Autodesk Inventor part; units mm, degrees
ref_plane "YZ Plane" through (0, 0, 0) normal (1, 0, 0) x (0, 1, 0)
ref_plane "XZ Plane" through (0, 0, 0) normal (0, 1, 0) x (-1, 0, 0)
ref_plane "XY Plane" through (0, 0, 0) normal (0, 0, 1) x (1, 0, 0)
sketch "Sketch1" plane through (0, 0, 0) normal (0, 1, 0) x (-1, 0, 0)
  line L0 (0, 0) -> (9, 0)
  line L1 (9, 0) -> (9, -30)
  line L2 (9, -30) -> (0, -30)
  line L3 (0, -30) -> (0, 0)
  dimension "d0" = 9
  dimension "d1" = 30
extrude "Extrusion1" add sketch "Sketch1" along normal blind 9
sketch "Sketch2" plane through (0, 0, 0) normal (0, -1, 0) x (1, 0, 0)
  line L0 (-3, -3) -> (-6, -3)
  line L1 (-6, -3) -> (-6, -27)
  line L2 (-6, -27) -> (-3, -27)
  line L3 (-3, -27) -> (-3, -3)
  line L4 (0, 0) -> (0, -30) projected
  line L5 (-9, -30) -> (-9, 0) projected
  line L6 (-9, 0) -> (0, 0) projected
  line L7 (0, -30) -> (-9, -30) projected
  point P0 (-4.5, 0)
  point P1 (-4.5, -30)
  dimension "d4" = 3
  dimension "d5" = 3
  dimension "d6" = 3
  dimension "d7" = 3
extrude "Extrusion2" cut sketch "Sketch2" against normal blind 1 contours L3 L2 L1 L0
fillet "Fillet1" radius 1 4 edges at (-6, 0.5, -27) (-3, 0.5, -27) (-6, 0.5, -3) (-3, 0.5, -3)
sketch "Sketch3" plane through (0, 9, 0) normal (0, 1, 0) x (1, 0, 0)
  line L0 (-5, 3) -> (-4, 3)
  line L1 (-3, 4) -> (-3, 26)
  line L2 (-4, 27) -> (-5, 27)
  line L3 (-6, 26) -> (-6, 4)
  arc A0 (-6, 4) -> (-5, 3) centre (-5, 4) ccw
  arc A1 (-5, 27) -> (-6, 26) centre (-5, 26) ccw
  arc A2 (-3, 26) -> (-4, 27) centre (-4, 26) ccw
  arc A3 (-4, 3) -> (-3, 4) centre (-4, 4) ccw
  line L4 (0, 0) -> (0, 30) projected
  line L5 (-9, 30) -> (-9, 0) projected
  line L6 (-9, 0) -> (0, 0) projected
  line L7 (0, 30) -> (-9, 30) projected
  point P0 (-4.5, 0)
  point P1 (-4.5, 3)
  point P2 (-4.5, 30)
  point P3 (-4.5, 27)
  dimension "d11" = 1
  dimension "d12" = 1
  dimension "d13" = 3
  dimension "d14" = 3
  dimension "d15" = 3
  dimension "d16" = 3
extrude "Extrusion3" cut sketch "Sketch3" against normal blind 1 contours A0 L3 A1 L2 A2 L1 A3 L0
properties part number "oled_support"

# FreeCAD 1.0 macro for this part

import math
import FreeCAD as App
import Part
import Sketcher
Q = App.Units.Quantity


def edges_at(feature, points):
    """Names of the edges that pass closest to the given points."""
    edges = feature.Shape.Edges
    near = lambda p: min(range(len(edges)), key=lambda i: edges[i].distToShape(Part.Vertex(*p))[0])
    return sorted({f"Edge{near(p) + 1}" for p in points})

doc = App.newDocument("Part")
params = doc.addObject("Spreadsheet::Sheet", "Params")
for row, (alias, value) in enumerate([
    ("sketch1_width", "9 mm"),
    ("sketch1_height", "30 mm"),
    ("pad1_length", "9 mm"),
    ("sketch2_width", "3 mm"),
    ("sketch2_height", "24 mm"),
    ("pocket1_length", "1 mm"),
    ("fillet_radius", "1 mm"),
    ("sketch3_radius", "1 mm"),
    ("sketch3_width", "1 mm"),
    ("sketch3_height", "22 mm"),
    ("pocket2_length", "1 mm"),
], start=1):
    params.set(f"A{row}", alias)
    params.set(f"B{row}", "=" + value)
    params.setAlias(f"B{row}", alias)

body = doc.addObject("PartDesign::Body", "Body")

# Sketch on XZ plane
sketch1 = body.newObject("Sketcher::SketchObject", "Sketch")
sketch1.AttachmentSupport = (doc.getObject("XZ_Plane"), [""])
sketch1.MapMode = "FlatFace"
sketch1.addGeometry([
    Part.LineSegment(App.Vector(-9, 0, 0), App.Vector(0, 0, 0)),
    Part.LineSegment(App.Vector(0, 0, 0), App.Vector(0, -30, 0)),
    Part.LineSegment(App.Vector(0, -30, 0), App.Vector(-9, -30, 0)),
    Part.LineSegment(App.Vector(-9, -30, 0), App.Vector(-9, 0, 0)),
], False)
sketch1.addConstraint([
    Sketcher.Constraint("Coincident", 0, 2, 1, 1),
    Sketcher.Constraint("Coincident", 1, 2, 2, 1),
    Sketcher.Constraint("Coincident", 2, 2, 3, 1),
    Sketcher.Constraint("Coincident", 3, 2, 0, 1),
    Sketcher.Constraint("Horizontal", 0),
    Sketcher.Constraint("Vertical", 1),
    Sketcher.Constraint("Horizontal", 2),
    Sketcher.Constraint("Vertical", 3),
    Sketcher.Constraint("Coincident", 0, 2, -1, 1),
    Sketcher.Constraint("DistanceX", 0, 1, 0, 2, Q("9 mm")),
    Sketcher.Constraint("DistanceY", 1, 2, 1, 1, Q("30 mm")),
])
sketch1.setExpression("Constraints[9]", "Params.sketch1_width")
sketch1.setExpression("Constraints[10]", "Params.sketch1_height")
pad1 = body.newObject("PartDesign::Pad", "Pad")
pad1.Profile = sketch1
pad1.setExpression("Length", "Params.pad1_length")
pad1.Reversed = True

# Sketch on XZ plane
sketch2 = body.newObject("Sketcher::SketchObject", "Sketch001")
sketch2.AttachmentSupport = (doc.getObject("XZ_Plane"), [""])
sketch2.MapMode = "FlatFace"
sketch2.addGeometry([
    Part.LineSegment(App.Vector(-3, -27, 0), App.Vector(-3, -3, 0)),
    Part.LineSegment(App.Vector(-3, -3, 0), App.Vector(-6, -3, 0)),
    Part.LineSegment(App.Vector(-6, -3, 0), App.Vector(-6, -27, 0)),
    Part.LineSegment(App.Vector(-6, -27, 0), App.Vector(-3, -27, 0)),
], False)
sketch2.addConstraint([
    Sketcher.Constraint("Coincident", 0, 2, 1, 1),
    Sketcher.Constraint("Coincident", 1, 2, 2, 1),
    Sketcher.Constraint("Coincident", 2, 2, 3, 1),
    Sketcher.Constraint("Coincident", 3, 2, 0, 1),
    Sketcher.Constraint("Vertical", 0),
    Sketcher.Constraint("Horizontal", 1),
    Sketcher.Constraint("Vertical", 2),
    Sketcher.Constraint("Horizontal", 3),
    Sketcher.Constraint("DistanceX", 1, 2, 1, 1, Q("3 mm")),
    Sketcher.Constraint("DistanceX", 0, 2, -1, 1, Q("3 mm")),
    Sketcher.Constraint("DistanceY", 0, 2, -1, 1, Q("3 mm")),
    Sketcher.Constraint("DistanceY", 0, 1, 0, 2, Q("24 mm")),
])
sketch2.setExpression("Constraints[8]", "Params.sketch2_width")
sketch2.setExpression("Constraints[11]", "Params.sketch2_height")
pocket1 = body.newObject("PartDesign::Pocket", "Pocket")
pocket1.Profile = sketch2
pocket1.setExpression("Length", "Params.pocket1_length")
doc.recompute()

fillet = body.newObject("PartDesign::Fillet", "Fillet")
fillet.Base = (pocket1, edges_at(pocket1, [
    (-6, 0.5, -27),
    (-3, 0.5, -27),
    (-6, 0.5, -3),
    (-3, 0.5, -3),
]))
fillet.setExpression("Radius", "Params.fillet_radius")

# Sketch on XZ plane
sketch3 = body.newObject("Sketcher::SketchObject", "Sketch002")
sketch3.AttachmentSupport = (doc.getObject("XZ_Plane"), [""])
sketch3.MapMode = "FlatFace"
sketch3.AttachmentOffset = App.Placement(App.Vector(0, 0, -9), App.Rotation())
sketch3.addGeometry([
    Part.ArcOfCircle(Part.Circle(App.Vector(-5, -4, 0), App.Vector(0, 0, 1), 1), math.radians(90), math.radians(180)),  # 0
    Part.LineSegment(App.Vector(-5, -3, 0), App.Vector(-4, -3, 0)),  # 1
    Part.ArcOfCircle(Part.Circle(App.Vector(-4, -4, 0), App.Vector(0, 0, 1), 1), math.radians(0), math.radians(90)),  # 2
    Part.LineSegment(App.Vector(-3, -4, 0), App.Vector(-3, -26, 0)),  # 3
    Part.ArcOfCircle(Part.Circle(App.Vector(-4, -26, 0), App.Vector(0, 0, 1), 1), math.radians(-90), math.radians(0)),  # 4
    Part.LineSegment(App.Vector(-4, -27, 0), App.Vector(-5, -27, 0)),  # 5
    Part.ArcOfCircle(Part.Circle(App.Vector(-5, -26, 0), App.Vector(0, 0, 1), 1), math.radians(180), math.radians(270)),  # 6
    Part.LineSegment(App.Vector(-6, -26, 0), App.Vector(-6, -4, 0)),  # 7
], False)
sketch3.addConstraint([
    Sketcher.Constraint("Tangent", 0, 1, 1, 1),
    Sketcher.Constraint("Tangent", 1, 2, 2, 2),
    Sketcher.Constraint("Tangent", 2, 1, 3, 1),
    Sketcher.Constraint("Tangent", 3, 2, 4, 2),
    Sketcher.Constraint("Tangent", 4, 1, 5, 1),
    Sketcher.Constraint("Tangent", 5, 2, 6, 2),
    Sketcher.Constraint("Tangent", 6, 1, 7, 1),
    Sketcher.Constraint("Tangent", 7, 2, 0, 2),
    Sketcher.Constraint("Horizontal", 1),
    Sketcher.Constraint("Vertical", 3),
    Sketcher.Constraint("Horizontal", 5),
    Sketcher.Constraint("Vertical", 7),
    Sketcher.Constraint("Equal", 0, 2),
    Sketcher.Constraint("Equal", 2, 4),
    Sketcher.Constraint("Equal", 4, 6),
    Sketcher.Constraint("Radius", 0, Q("1 mm")),
    Sketcher.Constraint("DistanceX", 1, 1, 1, 2, Q("1 mm")),
    Sketcher.Constraint("DistanceY", 0, 1, -1, 1, Q("3 mm")),
    Sketcher.Constraint("DistanceX", 2, 1, -1, 1, Q("3 mm")),
    Sketcher.Constraint("DistanceY", 3, 2, 3, 1, Q("22 mm")),
])
sketch3.setExpression("Constraints[15]", "Params.sketch3_radius")
sketch3.setExpression("Constraints[16]", "Params.sketch3_width")
sketch3.setExpression("Constraints[19]", "Params.sketch3_height")
pocket2 = body.newObject("PartDesign::Pocket", "Pocket001")
pocket2.Profile = sketch3
pocket2.setExpression("Length", "Params.pocket2_length")
pocket2.Reversed = True

doc.recompute()
